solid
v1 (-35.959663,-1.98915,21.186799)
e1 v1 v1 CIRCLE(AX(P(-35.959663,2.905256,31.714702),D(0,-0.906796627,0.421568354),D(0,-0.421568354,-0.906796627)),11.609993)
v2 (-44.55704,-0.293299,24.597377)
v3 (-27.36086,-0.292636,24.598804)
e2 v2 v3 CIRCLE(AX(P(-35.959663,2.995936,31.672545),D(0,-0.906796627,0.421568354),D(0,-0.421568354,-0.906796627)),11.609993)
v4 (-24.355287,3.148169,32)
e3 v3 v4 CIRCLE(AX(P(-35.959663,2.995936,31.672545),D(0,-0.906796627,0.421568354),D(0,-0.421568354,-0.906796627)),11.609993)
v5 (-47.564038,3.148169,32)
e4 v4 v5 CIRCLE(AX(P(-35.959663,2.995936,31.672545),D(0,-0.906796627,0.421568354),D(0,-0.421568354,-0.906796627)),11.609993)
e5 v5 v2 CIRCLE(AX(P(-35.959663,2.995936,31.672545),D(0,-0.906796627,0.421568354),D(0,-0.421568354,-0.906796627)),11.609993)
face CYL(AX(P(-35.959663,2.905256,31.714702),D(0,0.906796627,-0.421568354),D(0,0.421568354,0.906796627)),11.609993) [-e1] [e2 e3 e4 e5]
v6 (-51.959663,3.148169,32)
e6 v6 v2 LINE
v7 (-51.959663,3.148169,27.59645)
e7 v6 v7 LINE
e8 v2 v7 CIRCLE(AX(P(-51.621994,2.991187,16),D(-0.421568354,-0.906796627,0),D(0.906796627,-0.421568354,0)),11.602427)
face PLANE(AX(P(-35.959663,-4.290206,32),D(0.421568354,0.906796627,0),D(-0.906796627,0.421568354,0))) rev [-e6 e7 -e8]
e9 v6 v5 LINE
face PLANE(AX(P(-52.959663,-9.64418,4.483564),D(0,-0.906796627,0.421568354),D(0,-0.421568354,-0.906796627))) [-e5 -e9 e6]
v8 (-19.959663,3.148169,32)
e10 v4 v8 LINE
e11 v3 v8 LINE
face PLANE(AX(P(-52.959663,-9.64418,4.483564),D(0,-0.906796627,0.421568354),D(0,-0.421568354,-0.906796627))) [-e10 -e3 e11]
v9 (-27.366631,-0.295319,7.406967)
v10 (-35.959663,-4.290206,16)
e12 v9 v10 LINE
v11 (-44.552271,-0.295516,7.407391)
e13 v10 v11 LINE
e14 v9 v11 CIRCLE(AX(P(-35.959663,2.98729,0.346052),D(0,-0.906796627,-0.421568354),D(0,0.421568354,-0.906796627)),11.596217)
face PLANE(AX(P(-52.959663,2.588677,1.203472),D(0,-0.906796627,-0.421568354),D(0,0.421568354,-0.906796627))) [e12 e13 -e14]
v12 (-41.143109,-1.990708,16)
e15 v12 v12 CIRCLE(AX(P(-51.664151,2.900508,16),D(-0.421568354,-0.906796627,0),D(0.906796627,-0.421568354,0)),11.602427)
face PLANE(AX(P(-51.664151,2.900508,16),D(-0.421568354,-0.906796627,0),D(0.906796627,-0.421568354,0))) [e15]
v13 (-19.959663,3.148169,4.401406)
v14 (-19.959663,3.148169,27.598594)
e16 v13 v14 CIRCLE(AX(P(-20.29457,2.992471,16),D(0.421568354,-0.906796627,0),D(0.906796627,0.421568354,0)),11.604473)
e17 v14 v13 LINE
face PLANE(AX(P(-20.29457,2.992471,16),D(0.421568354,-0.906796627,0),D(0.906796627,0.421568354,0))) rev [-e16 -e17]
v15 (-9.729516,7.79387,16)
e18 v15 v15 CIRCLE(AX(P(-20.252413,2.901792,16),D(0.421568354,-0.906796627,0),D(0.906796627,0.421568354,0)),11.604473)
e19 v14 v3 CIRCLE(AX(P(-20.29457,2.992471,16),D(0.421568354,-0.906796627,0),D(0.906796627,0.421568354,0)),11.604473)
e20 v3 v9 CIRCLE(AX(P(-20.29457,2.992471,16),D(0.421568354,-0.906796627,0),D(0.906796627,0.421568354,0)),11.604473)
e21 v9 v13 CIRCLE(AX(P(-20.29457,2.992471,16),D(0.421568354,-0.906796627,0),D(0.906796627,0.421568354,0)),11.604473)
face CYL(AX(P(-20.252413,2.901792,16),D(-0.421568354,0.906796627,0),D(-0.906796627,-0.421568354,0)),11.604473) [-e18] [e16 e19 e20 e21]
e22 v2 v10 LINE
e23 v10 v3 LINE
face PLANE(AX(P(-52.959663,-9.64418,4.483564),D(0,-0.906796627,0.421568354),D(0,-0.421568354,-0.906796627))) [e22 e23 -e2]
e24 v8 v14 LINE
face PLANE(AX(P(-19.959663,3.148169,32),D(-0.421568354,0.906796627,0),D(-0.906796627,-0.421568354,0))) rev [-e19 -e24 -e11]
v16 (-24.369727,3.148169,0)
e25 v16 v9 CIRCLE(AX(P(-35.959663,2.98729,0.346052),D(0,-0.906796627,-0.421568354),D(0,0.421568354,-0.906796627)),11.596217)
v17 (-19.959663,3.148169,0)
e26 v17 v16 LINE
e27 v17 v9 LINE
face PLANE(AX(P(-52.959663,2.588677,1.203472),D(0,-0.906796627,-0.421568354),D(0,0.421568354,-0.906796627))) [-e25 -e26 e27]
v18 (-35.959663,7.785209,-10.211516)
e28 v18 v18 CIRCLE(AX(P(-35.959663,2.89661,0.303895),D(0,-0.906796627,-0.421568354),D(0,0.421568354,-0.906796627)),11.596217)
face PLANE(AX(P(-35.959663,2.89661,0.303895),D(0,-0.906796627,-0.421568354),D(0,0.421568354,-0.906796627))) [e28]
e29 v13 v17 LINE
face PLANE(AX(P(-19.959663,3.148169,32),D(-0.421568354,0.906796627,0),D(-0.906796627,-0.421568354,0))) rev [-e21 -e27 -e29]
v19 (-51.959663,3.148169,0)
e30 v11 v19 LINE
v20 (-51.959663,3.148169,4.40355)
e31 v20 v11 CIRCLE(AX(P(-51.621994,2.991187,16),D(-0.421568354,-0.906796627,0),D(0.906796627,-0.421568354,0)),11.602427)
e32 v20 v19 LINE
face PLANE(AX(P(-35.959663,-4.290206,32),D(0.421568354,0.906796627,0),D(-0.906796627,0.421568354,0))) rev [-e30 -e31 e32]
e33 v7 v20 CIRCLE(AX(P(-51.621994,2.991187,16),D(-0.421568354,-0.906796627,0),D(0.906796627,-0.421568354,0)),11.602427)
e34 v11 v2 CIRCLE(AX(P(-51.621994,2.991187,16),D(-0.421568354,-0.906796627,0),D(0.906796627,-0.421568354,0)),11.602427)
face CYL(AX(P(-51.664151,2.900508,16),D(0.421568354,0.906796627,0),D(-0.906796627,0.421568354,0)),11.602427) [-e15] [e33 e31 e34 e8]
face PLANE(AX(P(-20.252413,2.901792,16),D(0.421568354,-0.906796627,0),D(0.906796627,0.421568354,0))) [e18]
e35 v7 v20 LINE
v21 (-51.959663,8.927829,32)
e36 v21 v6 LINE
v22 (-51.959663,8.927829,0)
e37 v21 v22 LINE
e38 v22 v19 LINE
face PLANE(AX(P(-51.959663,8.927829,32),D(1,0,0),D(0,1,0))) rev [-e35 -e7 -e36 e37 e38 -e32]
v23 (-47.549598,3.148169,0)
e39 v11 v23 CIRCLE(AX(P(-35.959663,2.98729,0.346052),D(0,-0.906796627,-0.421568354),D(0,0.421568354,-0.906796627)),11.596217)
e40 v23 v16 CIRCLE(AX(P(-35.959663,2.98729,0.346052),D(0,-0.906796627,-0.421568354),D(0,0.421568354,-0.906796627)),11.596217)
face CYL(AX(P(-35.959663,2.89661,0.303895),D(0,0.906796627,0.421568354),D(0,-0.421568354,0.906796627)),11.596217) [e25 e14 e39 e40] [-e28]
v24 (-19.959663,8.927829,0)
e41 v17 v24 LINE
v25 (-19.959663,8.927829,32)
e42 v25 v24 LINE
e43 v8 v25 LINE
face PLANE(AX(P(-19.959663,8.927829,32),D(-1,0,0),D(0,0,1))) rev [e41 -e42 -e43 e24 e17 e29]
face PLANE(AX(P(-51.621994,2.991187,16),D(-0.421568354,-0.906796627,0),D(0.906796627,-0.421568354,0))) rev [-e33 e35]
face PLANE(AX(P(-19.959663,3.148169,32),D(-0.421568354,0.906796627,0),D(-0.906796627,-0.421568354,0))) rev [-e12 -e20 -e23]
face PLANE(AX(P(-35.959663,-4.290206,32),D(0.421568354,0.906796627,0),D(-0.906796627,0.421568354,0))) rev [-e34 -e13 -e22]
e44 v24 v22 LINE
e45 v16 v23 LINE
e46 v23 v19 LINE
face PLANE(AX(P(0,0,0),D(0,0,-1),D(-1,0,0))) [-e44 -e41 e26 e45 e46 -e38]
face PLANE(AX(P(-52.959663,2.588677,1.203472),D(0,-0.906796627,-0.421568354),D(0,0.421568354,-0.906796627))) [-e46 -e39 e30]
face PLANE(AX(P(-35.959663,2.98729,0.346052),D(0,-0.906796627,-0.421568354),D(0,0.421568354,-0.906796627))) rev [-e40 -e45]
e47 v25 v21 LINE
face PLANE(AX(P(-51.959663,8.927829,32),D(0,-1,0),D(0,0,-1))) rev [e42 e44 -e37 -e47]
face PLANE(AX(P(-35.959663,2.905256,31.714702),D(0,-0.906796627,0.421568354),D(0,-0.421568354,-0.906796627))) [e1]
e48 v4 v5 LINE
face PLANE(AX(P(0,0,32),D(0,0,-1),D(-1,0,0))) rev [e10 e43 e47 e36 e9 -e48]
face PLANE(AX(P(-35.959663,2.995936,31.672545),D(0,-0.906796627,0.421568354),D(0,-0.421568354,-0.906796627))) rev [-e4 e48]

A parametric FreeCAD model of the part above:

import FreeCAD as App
import Part
import Sketcher
Q = App.Units.Quantity

doc = App.newDocument("Part")
body = doc.addObject("PartDesign::Body", "Body")

# Sketch on XY plane
sketch1 = body.newObject("Sketcher::SketchObject", "Sketch")
sketch1.AttachmentSupport = (doc.getObject("XY_Plane"), [""])
sketch1.MapMode = "FlatFace"
sketch1.addGeometry(Part.LineSegment(App.Vector(-52, 9, 0), App.Vector(-52, 3, 0)), False)
sketch1.addGeometry(Part.LineSegment(App.Vector(-52, 3, 0), App.Vector(-36, -4, 0)), False)
sketch1.addGeometry(Part.LineSegment(App.Vector(-36, -4, 0), App.Vector(-20, 3, 0)), False)
sketch1.addGeometry(Part.LineSegment(App.Vector(-20, 3, 0), App.Vector(-20, 9, 0)), False)
sketch1.addGeometry(Part.LineSegment(App.Vector(-20, 9, 0), App.Vector(-52, 9, 0)), False)
sketch1.addConstraint(Sketcher.Constraint("Coincident", 0, 2, 1, 1))
sketch1.addConstraint(Sketcher.Constraint("Coincident", 1, 2, 2, 1))
sketch1.addConstraint(Sketcher.Constraint("Coincident", 2, 2, 3, 1))
sketch1.addConstraint(Sketcher.Constraint("Coincident", 3, 2, 4, 1))
sketch1.addConstraint(Sketcher.Constraint("Coincident", 4, 2, 0, 1))
sketch1.addConstraint(Sketcher.Constraint("Vertical", 0))
sketch1.addConstraint(Sketcher.Constraint("Vertical", 3))
sketch1.addConstraint(Sketcher.Constraint("Horizontal", 4))
sketch1.addConstraint(Sketcher.Constraint("Horizontal", 0, 2, 2, 2))
sketch1.addConstraint(Sketcher.Constraint("Equal", 1, 2))
sketch1.addConstraint(Sketcher.Constraint("DistanceX", 4, 2, 4, 1, Q("32 mm")))
sketch1.addConstraint(Sketcher.Constraint("DistanceY", 0, 2, 0, 1, Q("5.77966 mm")))
sketch1.addConstraint(Sketcher.Constraint("Distance", 1, Q("17.64453 mm")))
sketch1.addConstraint(Sketcher.Constraint("DistanceY", -1, 1, 0, 2, Q("3.148169 mm")))
sketch1.addConstraint(Sketcher.Constraint("DistanceX", 0, 2, -1, 1, Q("51.959663 mm")))
pad1 = body.newObject("PartDesign::Pad", "Pad")
pad1.Profile = sketch1
pad1.Length = 32

# Sketch on YZ plane
sketch2 = body.newObject("Sketcher::SketchObject", "Sketch001")
sketch2.AttachmentSupport = (doc.getObject("YZ_Plane"), [""])
sketch2.MapMode = "FlatFace"
sketch2.AttachmentOffset = App.Placement(App.Vector(0, 0, -19.959663), App.Rotation())
sketch2.addGeometry(Part.LineSegment(App.Vector(-4, 16, 0), App.Vector(-4, 0, 0)), False)
sketch2.addGeometry(Part.LineSegment(App.Vector(-4, 0, 0), App.Vector(3, 0, 0)), False)
sketch2.addGeometry(Part.LineSegment(App.Vector(3, 0, 0), App.Vector(-4, 16, 0)), False)
sketch2.addGeometry(Part.LineSegment(App.Vector(3, 32, 0), App.Vector(-4, 32, 0)), False)
sketch2.addGeometry(Part.LineSegment(App.Vector(-4, 32, 0), App.Vector(-4, 16, 0)), False)
sketch2.addGeometry(Part.LineSegment(App.Vector(-4, 16, 0), App.Vector(3, 32, 0)), False)
sketch2.addConstraint(Sketcher.Constraint("Coincident", 0, 2, 1, 1))
sketch2.addConstraint(Sketcher.Constraint("Coincident", 1, 2, 2, 1))
sketch2.addConstraint(Sketcher.Constraint("Coincident", 2, 2, 0, 1))
sketch2.addConstraint(Sketcher.Constraint("Coincident", 3, 2, 4, 1))
sketch2.addConstraint(Sketcher.Constraint("Coincident", 4, 2, 5, 1))
sketch2.addConstraint(Sketcher.Constraint("Coincident", 5, 2, 3, 1))
sketch2.addConstraint(Sketcher.Constraint("Vertical", 0))
sketch2.addConstraint(Sketcher.Constraint("Horizontal", 1))
sketch2.addConstraint(Sketcher.Constraint("Horizontal", 3))
sketch2.addConstraint(Sketcher.Constraint("Vertical", 4))
sketch2.addConstraint(Sketcher.Constraint("Coincident", 4, 2, 2, 2))
sketch2.addConstraint(Sketcher.Constraint("PointOnObject", 0, 2, -1))
sketch2.addConstraint(Sketcher.Constraint("Vertical", 1, 2, 5, 2))
sketch2.addConstraint(Sketcher.Constraint("Equal", 0, 4))
sketch2.addConstraint(Sketcher.Constraint("DistanceY", 0, 2, 0, 1, Q("16 mm")))
sketch2.addConstraint(Sketcher.Constraint("Distance", 2, Q("17.64453 mm")))
sketch2.addConstraint(Sketcher.Constraint("DistanceX", -1, 1, 1, 2, Q("3.148169 mm")))
pocket1 = body.newObject("PartDesign::Pocket", "Pocket")
pocket1.Profile = sketch2
pocket1.Length = 33

# Sketch on an angled plane
sketch3 = body.newObject("Sketcher::SketchObject", "Sketch002")
sketch3.Placement = App.Placement(App.Vector(-4.750701, 10.218792, 0), App.Rotation(App.Vector(-0.906796627, -0.421568354, 0), App.Vector(0, 0, -1), App.Vector(0.421568354, -0.906796627, 0), "ZXY"))
sketch3.addGeometry(Part.Circle(App.Vector(17, -16, 0), App.Vector(0, 0, 1), 12), False)
sketch3.addConstraint(Sketcher.Constraint("DistanceY", 0, 3, -1, 1, Q("16 mm")))
sketch3.addConstraint(Sketcher.Constraint("Diameter", 0, Q("23.208945 mm")))
sketch3.addConstraint(Sketcher.Constraint("DistanceX", -1, 1, 0, 3, Q("17.141516 mm")))
pad2 = body.newObject("PartDesign::Pad", "Pad001")
pad2.Profile = sketch3
pad2.Length = 0.1

# Sketch on an angled plane
sketch4 = body.newObject("Sketcher::SketchObject", "Sketch003")
sketch4.Placement = App.Placement(App.Vector(0, -9.64418, 4.483564), App.Rotation(App.Vector(-1, 0, 0), App.Vector(0, -0.421568354, -0.906796627), App.Vector(0, -0.906796627, 0.421568354), "ZXY"))
sketch4.addGeometry(Part.Circle(App.Vector(36, -30, 0), App.Vector(0, 0, 1), 12), False)
sketch4.addConstraint(Sketcher.Constraint("Diameter", 0, Q("23.219986 mm")))
sketch4.addConstraint(Sketcher.Constraint("DistanceY", 0, 3, -1, 1, Q("29.983549 mm")))
sketch4.addConstraint(Sketcher.Constraint("DistanceX", -1, 1, 0, 3, Q("35.959663 mm")))
pad3 = body.newObject("PartDesign::Pad", "Pad002")
pad3.Profile = sketch4
pad3.Length = 0.1

# Sketch on an angled plane
sketch5 = body.newObject("Sketcher::SketchObject", "Sketch004")
sketch5.Placement = App.Placement(App.Vector(-8.030793, -17.274295, 0), App.Rotation(App.Vector(-0.906796627, 0.421568354, 0), App.Vector(0, 0, -1), App.Vector(-0.421568354, -0.906796627, 0), "ZXY"))
sketch5.addGeometry(Part.Circle(App.Vector(48, -16, 0), App.Vector(0, 0, 1), 12), False)
sketch5.addConstraint(Sketcher.Constraint("DistanceY", 0, 3, -1, 1, Q("16 mm")))
sketch5.addConstraint(Sketcher.Constraint("Diameter", 0, Q("23.204854 mm")))
sketch5.addConstraint(Sketcher.Constraint("DistanceX", -1, 1, 0, 3, Q("48.07164 mm")))
pad4 = body.newObject("PartDesign::Pad", "Pad003")
pad4.Profile = sketch5
pad4.Length = 0.1

# Sketch on an angled plane
sketch6 = body.newObject("Sketcher::SketchObject", "Sketch005")
sketch6.Placement = App.Placement(App.Vector(0, 2.588677, 1.203472), App.Rotation(App.Vector(-1, 0, 0), App.Vector(0, 0.421568354, -0.906796627), App.Vector(0, -0.906796627, -0.421568354), "ZXY"))
sketch6.addGeometry(Part.Circle(App.Vector(36, 1, 0), App.Vector(0, 0, 1), 12), False)
sketch6.addConstraint(Sketcher.Constraint("Diameter", 0, Q("23.192434 mm")))
sketch6.addConstraint(Sketcher.Constraint("DistanceY", -1, 1, 0, 3, Q("0.945549 mm")))
sketch6.addConstraint(Sketcher.Constraint("DistanceX", -1, 1, 0, 3, Q("35.959663 mm")))
pad5 = body.newObject("PartDesign::Pad", "Pad004")
pad5.Profile = sketch6
pad5.Length = 0.1

doc.recompute()
